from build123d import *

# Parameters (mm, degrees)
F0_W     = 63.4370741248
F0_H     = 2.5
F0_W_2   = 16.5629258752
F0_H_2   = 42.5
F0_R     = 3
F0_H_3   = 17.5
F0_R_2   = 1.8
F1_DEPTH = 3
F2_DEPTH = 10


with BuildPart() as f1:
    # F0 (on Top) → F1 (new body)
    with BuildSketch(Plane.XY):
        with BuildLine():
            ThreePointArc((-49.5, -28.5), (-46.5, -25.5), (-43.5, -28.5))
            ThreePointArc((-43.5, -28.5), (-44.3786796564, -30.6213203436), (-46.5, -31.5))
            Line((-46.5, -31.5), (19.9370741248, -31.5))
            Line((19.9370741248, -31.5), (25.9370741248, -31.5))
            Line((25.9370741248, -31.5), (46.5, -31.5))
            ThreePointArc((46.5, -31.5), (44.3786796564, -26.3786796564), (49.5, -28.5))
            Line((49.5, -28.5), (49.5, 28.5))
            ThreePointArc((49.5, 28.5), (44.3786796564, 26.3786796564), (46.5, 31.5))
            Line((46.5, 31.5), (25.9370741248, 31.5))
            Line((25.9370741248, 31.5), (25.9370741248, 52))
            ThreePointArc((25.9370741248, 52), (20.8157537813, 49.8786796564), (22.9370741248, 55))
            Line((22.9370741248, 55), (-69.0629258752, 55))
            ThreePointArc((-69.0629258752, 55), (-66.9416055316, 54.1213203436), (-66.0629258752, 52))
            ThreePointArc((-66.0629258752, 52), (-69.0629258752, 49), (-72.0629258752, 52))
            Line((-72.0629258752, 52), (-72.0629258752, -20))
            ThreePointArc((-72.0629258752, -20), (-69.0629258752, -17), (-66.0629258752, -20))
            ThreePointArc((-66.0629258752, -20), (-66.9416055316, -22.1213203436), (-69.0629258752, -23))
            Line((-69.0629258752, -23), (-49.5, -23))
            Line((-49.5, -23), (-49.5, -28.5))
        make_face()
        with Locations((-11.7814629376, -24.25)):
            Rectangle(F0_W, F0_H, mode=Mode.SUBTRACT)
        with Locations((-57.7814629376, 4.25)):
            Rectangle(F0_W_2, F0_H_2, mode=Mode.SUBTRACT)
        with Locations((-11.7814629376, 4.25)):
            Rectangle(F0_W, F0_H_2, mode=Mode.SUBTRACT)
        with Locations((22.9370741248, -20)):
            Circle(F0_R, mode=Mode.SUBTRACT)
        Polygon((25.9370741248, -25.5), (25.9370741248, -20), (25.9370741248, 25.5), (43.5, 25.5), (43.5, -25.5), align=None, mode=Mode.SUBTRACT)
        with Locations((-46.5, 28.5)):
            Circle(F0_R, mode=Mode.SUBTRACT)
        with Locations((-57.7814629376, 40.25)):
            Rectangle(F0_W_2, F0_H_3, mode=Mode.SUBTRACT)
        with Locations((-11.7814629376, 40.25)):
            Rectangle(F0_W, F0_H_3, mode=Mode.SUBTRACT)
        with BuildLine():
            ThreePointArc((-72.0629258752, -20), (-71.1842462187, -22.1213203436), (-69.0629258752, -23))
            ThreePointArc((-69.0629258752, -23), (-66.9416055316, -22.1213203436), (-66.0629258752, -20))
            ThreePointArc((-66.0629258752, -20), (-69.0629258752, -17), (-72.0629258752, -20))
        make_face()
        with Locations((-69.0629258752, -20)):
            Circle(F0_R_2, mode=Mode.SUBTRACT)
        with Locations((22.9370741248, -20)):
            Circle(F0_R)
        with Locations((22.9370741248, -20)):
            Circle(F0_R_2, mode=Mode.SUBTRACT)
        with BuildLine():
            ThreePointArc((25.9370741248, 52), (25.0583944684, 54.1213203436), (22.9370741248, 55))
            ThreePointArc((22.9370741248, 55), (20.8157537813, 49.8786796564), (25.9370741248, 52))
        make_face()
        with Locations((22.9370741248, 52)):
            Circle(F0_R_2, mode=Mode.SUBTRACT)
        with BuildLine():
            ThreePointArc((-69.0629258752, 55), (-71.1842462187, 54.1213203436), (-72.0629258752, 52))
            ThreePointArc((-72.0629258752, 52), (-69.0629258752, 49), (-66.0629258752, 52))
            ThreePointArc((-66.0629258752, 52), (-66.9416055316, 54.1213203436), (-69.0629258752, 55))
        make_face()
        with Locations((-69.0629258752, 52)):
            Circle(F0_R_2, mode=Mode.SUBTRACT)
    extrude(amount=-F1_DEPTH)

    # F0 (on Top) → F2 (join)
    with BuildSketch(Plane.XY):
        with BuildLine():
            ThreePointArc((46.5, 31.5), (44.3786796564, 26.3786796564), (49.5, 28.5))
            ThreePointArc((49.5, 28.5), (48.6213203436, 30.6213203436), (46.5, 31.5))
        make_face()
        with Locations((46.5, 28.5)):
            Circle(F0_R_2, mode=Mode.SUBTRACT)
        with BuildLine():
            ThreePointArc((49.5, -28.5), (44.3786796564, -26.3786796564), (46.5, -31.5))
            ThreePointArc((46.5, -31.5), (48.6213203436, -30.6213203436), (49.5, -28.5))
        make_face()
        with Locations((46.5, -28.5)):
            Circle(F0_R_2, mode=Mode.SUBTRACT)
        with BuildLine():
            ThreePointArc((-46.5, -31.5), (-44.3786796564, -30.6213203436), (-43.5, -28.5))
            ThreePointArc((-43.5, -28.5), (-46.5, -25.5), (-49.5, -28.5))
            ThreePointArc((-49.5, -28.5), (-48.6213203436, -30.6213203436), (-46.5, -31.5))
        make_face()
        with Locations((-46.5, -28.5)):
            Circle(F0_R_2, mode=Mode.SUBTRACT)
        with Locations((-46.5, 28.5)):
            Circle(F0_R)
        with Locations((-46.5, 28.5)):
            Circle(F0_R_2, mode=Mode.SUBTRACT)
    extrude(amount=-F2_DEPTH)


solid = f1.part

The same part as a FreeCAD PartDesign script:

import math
import FreeCAD as App
import Part
import Sketcher

doc = App.newDocument("Part")
body = doc.addObject("PartDesign::Body", "Body")

sketch1 = body.newObject("Sketcher::SketchObject", "Sketch")
sketch1.AttachmentSupport = (doc.getObject("XY_Plane"), [""])
sketch1.MapMode = "FlatFace"
sketch1.addGeometry([
    Part.ArcOfCircle(Part.Circle(App.Vector(-46.5, -28.5, 0), App.Vector(0, 0, 1), 3), math.radians(0), math.radians(180)),
    Part.ArcOfCircle(Part.Circle(App.Vector(-46.5, -28.5, 0), App.Vector(0, 0, 1), 3), math.radians(-90), math.radians(0)),
    Part.LineSegment(App.Vector(-46.5, -31.5, 0), App.Vector(46.5, -31.5, 0)),
    Part.ArcOfCircle(Part.Circle(App.Vector(46.5, -28.5, 0), App.Vector(0, 0, 1), 3), math.radians(0), math.radians(270)),
    Part.LineSegment(App.Vector(49.5, -28.5, 0), App.Vector(49.5, 28.5, 0)),
    Part.ArcOfCircle(Part.Circle(App.Vector(46.5, 28.5, 0), App.Vector(0, 0, 1), 3), math.radians(90), math.radians(360)),
    Part.LineSegment(App.Vector(46.5, 31.5, 0), App.Vector(25.9, 31.5, 0)),
    Part.LineSegment(App.Vector(25.9, 31.5, 0), App.Vector(25.9, 52, 0)),
    Part.ArcOfCircle(Part.Circle(App.Vector(22.9, 52, 0), App.Vector(0, 0, 1), 3), math.radians(0), math.radians(90)),
    Part.LineSegment(App.Vector(22.9, 55, 0), App.Vector(-69.1, 55, 0)),
    Part.ArcOfCircle(Part.Circle(App.Vector(-69.1, 52, 0), App.Vector(0, 0, 1), 3), math.radians(90), math.radians(180)),
    Part.LineSegment(App.Vector(-72.1, 52, 0), App.Vector(-72.1, -20, 0)),
    Part.ArcOfCircle(Part.Circle(App.Vector(-69.1, -20, 0), App.Vector(0, 0, 1), 3), math.radians(180), math.radians(270)),
    Part.LineSegment(App.Vector(-69.1, -23, 0), App.Vector(-49.5, -23, 0)),
    Part.LineSegment(App.Vector(-49.5, -23, 0), App.Vector(-49.5, -28.5, 0)),
    Part.Circle(App.Vector(-69.1, -20, 0), App.Vector(0, 0, 1), 1.8),
    Part.LineSegment(App.Vector(-49.5, -17, 0), App.Vector(-66.1, -17, 0)),
    Part.LineSegment(App.Vector(-66.1, -17, 0), App.Vector(-66.1, 25.5, 0)),
    Part.LineSegment(App.Vector(-66.1, 25.5, 0), App.Vector(-49.5, 25.5, 0)),
    Part.LineSegment(App.Vector(-49.5, 25.5, 0), App.Vector(-49.5, -17, 0)),
    Part.LineSegment(App.Vector(19.9, -25.5, 0), App.Vector(-43.5, -25.5, 0)),
    Part.LineSegment(App.Vector(-43.5, -25.5, 0), App.Vector(-43.5, -23, 0)),
    Part.LineSegment(App.Vector(-43.5, -23, 0), App.Vector(19.9, -23, 0)),
    Part.LineSegment(App.Vector(19.9, -23, 0), App.Vector(19.9, -25.5, 0)),
    Part.Circle(App.Vector(22.9, -20, 0), App.Vector(0, 0, 1), 1.8),
    Part.LineSegment(App.Vector(19.9, -17, 0), App.Vector(-43.5, -17, 0)),
    Part.LineSegment(App.Vector(-43.5, -17, 0), App.Vector(-43.5, 25.5, 0)),
    Part.LineSegment(App.Vector(-43.5, 25.5, 0), App.Vector(19.9, 25.5, 0)),
    Part.LineSegment(App.Vector(19.9, 25.5, 0), App.Vector(19.9, -17, 0)),
    Part.LineSegment(App.Vector(25.9, -25.5, 0), App.Vector(25.9, 25.5, 0)),
    Part.LineSegment(App.Vector(25.9, 25.5, 0), App.Vector(43.5, 25.5, 0)),
    Part.LineSegment(App.Vector(43.5, 25.5, 0), App.Vector(43.5, -25.5, 0)),
    Part.LineSegment(App.Vector(43.5, -25.5, 0), App.Vector(25.9, -25.5, 0)),
    Part.Circle(App.Vector(-46.5, 28.5, 0), App.Vector(0, 0, 1), 3),
    Part.LineSegment(App.Vector(-49.5, 31.5, 0), App.Vector(-66.1, 31.5, 0)),
    Part.LineSegment(App.Vector(-66.1, 31.5, 0), App.Vector(-66.1, 49, 0)),
    Part.LineSegment(App.Vector(-66.1, 49, 0), App.Vector(-49.5, 49, 0)),
    Part.LineSegment(App.Vector(-49.5, 49, 0), App.Vector(-49.5, 31.5, 0)),
    Part.Circle(App.Vector(-69.1, 52, 0), App.Vector(0, 0, 1), 1.8),
    Part.LineSegment(App.Vector(19.9, 31.5, 0), App.Vector(-43.5, 31.5, 0)),
    Part.LineSegment(App.Vector(-43.5, 31.5, 0), App.Vector(-43.5, 49, 0)),
    Part.LineSegment(App.Vector(-43.5, 49, 0), App.Vector(19.9, 49, 0)),
    Part.LineSegment(App.Vector(19.9, 49, 0), App.Vector(19.9, 31.5, 0)),
    Part.Circle(App.Vector(22.9, 52, 0), App.Vector(0, 0, 1), 1.8),
], False)
sketch1.addConstraint([
    Sketcher.Constraint("Tangent", 0, 1, 1, 2),
    Sketcher.Constraint("Tangent", 1, 1, 2, 1),
    Sketcher.Constraint("Tangent", 2, 2, 3, 2),
    Sketcher.Constraint("Tangent", 3, 1, 4, 1),
    Sketcher.Constraint("Tangent", 4, 2, 5, 2),
    Sketcher.Constraint("Tangent", 5, 1, 6, 1),
    Sketcher.Constraint("Coincident", 6, 2, 7, 1),
    Sketcher.Constraint("Tangent", 7, 2, 8, 1),
    Sketcher.Constraint("Tangent", 8, 2, 9, 1),
    Sketcher.Constraint("Tangent", 9, 2, 10, 1),
    Sketcher.Constraint("Tangent", 10, 2, 11, 1),
    Sketcher.Constraint("Tangent", 11, 2, 12, 1),
    Sketcher.Constraint("Tangent", 12, 2, 13, 1),
    Sketcher.Constraint("Coincident", 13, 2, 14, 1),
    Sketcher.Constraint("Tangent", 14, 2, 0, 2),
    Sketcher.Constraint("Coincident", 16, 2, 17, 1),
    Sketcher.Constraint("Coincident", 17, 2, 18, 1),
    Sketcher.Constraint("Coincident", 18, 2, 19, 1),
    Sketcher.Constraint("Coincident", 19, 2, 16, 1),
    Sketcher.Constraint("Coincident", 20, 2, 21, 1),
    Sketcher.Constraint("Coincident", 21, 2, 22, 1),
    Sketcher.Constraint("Coincident", 22, 2, 23, 1),
    Sketcher.Constraint("Coincident", 23, 2, 20, 1),
    Sketcher.Constraint("Coincident", 25, 2, 26, 1),
    Sketcher.Constraint("Coincident", 26, 2, 27, 1),
    Sketcher.Constraint("Coincident", 27, 2, 28, 1),
    Sketcher.Constraint("Coincident", 28, 2, 25, 1),
    Sketcher.Constraint("Coincident", 29, 2, 30, 1),
    Sketcher.Constraint("Coincident", 30, 2, 31, 1),
    Sketcher.Constraint("Coincident", 31, 2, 32, 1),
    Sketcher.Constraint("Coincident", 32, 2, 29, 1),
    Sketcher.Constraint("Coincident", 34, 2, 35, 1),
    Sketcher.Constraint("Coincident", 35, 2, 36, 1),
    Sketcher.Constraint("Coincident", 36, 2, 37, 1),
    Sketcher.Constraint("Coincident", 37, 2, 34, 1),
    Sketcher.Constraint("Coincident", 39, 2, 40, 1),
    Sketcher.Constraint("Coincident", 40, 2, 41, 1),
    Sketcher.Constraint("Coincident", 41, 2, 42, 1),
    Sketcher.Constraint("Coincident", 42, 2, 39, 1),
    Sketcher.Constraint("Horizontal", 2),
    Sketcher.Constraint("Vertical", 4),
    Sketcher.Constraint("Horizontal", 6),
    Sketcher.Constraint("Vertical", 7),
    Sketcher.Constraint("Horizontal", 9),
    Sketcher.Constraint("Vertical", 11),
    Sketcher.Constraint("Horizontal", 13),
    Sketcher.Constraint("Vertical", 14),
    Sketcher.Constraint("Horizontal", 16),
    Sketcher.Constraint("Vertical", 17),
    Sketcher.Constraint("Horizontal", 18),
    Sketcher.Constraint("Vertical", 19),
    Sketcher.Constraint("Horizontal", 20),
    Sketcher.Constraint("Vertical", 21),
    Sketcher.Constraint("Horizontal", 22),
    Sketcher.Constraint("Vertical", 23),
    Sketcher.Constraint("Horizontal", 25),
    Sketcher.Constraint("Vertical", 26),
    Sketcher.Constraint("Horizontal", 27),
    Sketcher.Constraint("Vertical", 28),
    Sketcher.Constraint("Vertical", 29),
    Sketcher.Constraint("Horizontal", 30),
    Sketcher.Constraint("Vertical", 31),
    Sketcher.Constraint("Horizontal", 32),
    Sketcher.Constraint("Horizontal", 34),
    Sketcher.Constraint("Vertical", 35),
    Sketcher.Constraint("Horizontal", 36),
    Sketcher.Constraint("Vertical", 37),
    Sketcher.Constraint("Horizontal", 39),
    Sketcher.Constraint("Vertical", 40),
    Sketcher.Constraint("Horizontal", 41),
    Sketcher.Constraint("Vertical", 42),
    Sketcher.Constraint("Coincident", 15, 3, 12, 3),
    Sketcher.Constraint("Coincident", 38, 3, 10, 3),
    Sketcher.Constraint("Coincident", 43, 3, 8, 3),
    Sketcher.Constraint("Equal", 0, 1),
    Sketcher.Constraint("Equal", 1, 3),
    Sketcher.Constraint("Equal", 3, 5),
    Sketcher.Constraint("Equal", 5, 8),
    Sketcher.Constraint("Equal", 8, 10),
    Sketcher.Constraint("Equal", 10, 12),
    Sketcher.Constraint("Equal", 15, 24),
    Sketcher.Constraint("Equal", 12, 33),
    Sketcher.Constraint("Equal", 24, 38),
    Sketcher.Constraint("Equal", 38, 43),
    Sketcher.Constraint("Symmetric", 0, 3, 5, 3, -1, 1),
    Sketcher.Constraint("Symmetric", 3, 3, 33, 3, -1, 1),
    Sketcher.Constraint("Symmetric", 20, 2, 30, 2, -1, 1),
    Sketcher.Constraint("Symmetric", 26, 2, 31, 2, -1, 1),
    Sketcher.Constraint("Symmetric", 23, 2, 27, 2, -1),
    Sketcher.Constraint("Horizontal", 15, 3, 24, 3),
    Sketcher.Constraint("Horizontal", 3, 3, 0, 1),
    Sketcher.Constraint("Horizontal", 13, 2, 21, 2),
    Sketcher.Constraint("Horizontal", 19, 2, 25, 2),
    Sketcher.Constraint("Horizontal", 18, 2, 26, 2),
    Sketcher.Constraint("Horizontal", 6, 2, 34, 2),
    Sketcher.Constraint("Horizontal", 37, 2, 39, 2),
    Sketcher.Constraint("Horizontal", 36, 2, 40, 2),
    Sketcher.Constraint("Vertical", 8, 3, 24, 3),
    Sketcher.Constraint("Vertical", 14, 2, 18, 2),
    Sketcher.Constraint("Vertical", 0, 1, 20, 2),
    Sketcher.Constraint("Vertical", 7, 2, 29, 2),
    Sketcher.Constraint("Vertical", 17, 2, 34, 2),
    Sketcher.Constraint("Vertical", 19, 2, 36, 2),
    Sketcher.Constraint("Vertical", 26, 2, 39, 2),
    Sketcher.Constraint("Vertical", 28, 2, 41, 2),
    Sketcher.Constraint("Diameter", 33, 6.0),
    Sketcher.Constraint("Diameter", 15, 3.6),
    Sketcher.Constraint("DistanceX", 2, 1, 2, 2, 93.0),
    Sketcher.Constraint("DistanceX", 9, 2, 9, 1, 92.0),
    Sketcher.Constraint("DistanceY", 4, 1, 4, 2, 57.0),
    Sketcher.Constraint("DistanceY", 11, 2, 11, 1, 72.0),
    Sketcher.Constraint("DistanceY", 29, 1, 29, 2, 51.0),
    Sketcher.Constraint("DistanceY", 7, 1, 7, 2, 20.5),
    Sketcher.Constraint("DistanceY", 17, 1, 17, 2, 42.5),
    Sketcher.Constraint("DistanceY", 35, 1, 35, 2, 17.5),
    Sketcher.Constraint("DistanceX", 12, 3, 16, 2, 3.0),
    Sketcher.Constraint("DistanceX", 22, 2, 24, 3, 3.0),
    Sketcher.Constraint("DistanceX", 6, 2, 6, 1, 20.562926),
])
pad1 = body.newObject("PartDesign::Pad", "Pad")
pad1.Profile = sketch1
pad1.Length = 3
pad1.Reversed = True

sketch2 = body.newObject("Sketcher::SketchObject", "Sketch001")
sketch2.AttachmentSupport = (doc.getObject("XY_Plane"), [""])
sketch2.MapMode = "FlatFace"
sketch2.addGeometry([
    Part.ArcOfCircle(Part.Circle(App.Vector(46.5, 28.5, 0), App.Vector(0, 0, 1), 3), math.radians(90), math.radians(360)),
    Part.ArcOfCircle(Part.Circle(App.Vector(46.5, 28.5, 0), App.Vector(0, 0, 1), 3), math.radians(0), math.radians(90)),
    Part.Circle(App.Vector(46.5, 28.5, 0), App.Vector(0, 0, 1), 1.8),
    Part.ArcOfCircle(Part.Circle(App.Vector(46.5, -28.5, 0), App.Vector(0, 0, 1), 3), math.radians(0), math.radians(270)),
    Part.ArcOfCircle(Part.Circle(App.Vector(46.5, -28.5, 0), App.Vector(0, 0, 1), 3), math.radians(-90), math.radians(0)),
    Part.Circle(App.Vector(46.5, -28.5, 0), App.Vector(0, 0, 1), 1.8),
    Part.ArcOfCircle(Part.Circle(App.Vector(-46.5, -28.5, 0), App.Vector(0, 0, 1), 3), math.radians(-90), math.radians(0)),
    Part.ArcOfCircle(Part.Circle(App.Vector(-46.5, -28.5, 0), App.Vector(0, 0, 1), 3), math.radians(0), math.radians(180)),
    Part.ArcOfCircle(Part.Circle(App.Vector(-46.5, -28.5, 0), App.Vector(0, 0, 1), 3), math.radians(180), math.radians(270)),
    Part.Circle(App.Vector(-46.5, -28.5, 0), App.Vector(0, 0, 1), 1.8),
    Part.Circle(App.Vector(-46.5, 28.5, 0), App.Vector(0, 0, 1), 3),
    Part.Circle(App.Vector(-46.5, 28.5, 0), App.Vector(0, 0, 1), 1.8),
], False)
sketch2.addConstraint([
    Sketcher.Constraint("Tangent", 0, 1, 1, 2),
    Sketcher.Constraint("Coincident", 1, 1, 0, 2),
    Sketcher.Constraint("Tangent", 3, 1, 4, 2),
    Sketcher.Constraint("Coincident", 4, 1, 3, 2),
    Sketcher.Constraint("Tangent", 6, 2, 7, 1),
    Sketcher.Constraint("Tangent", 7, 2, 8, 1),
    Sketcher.Constraint("Tangent", 8, 2, 6, 1),
    Sketcher.Constraint("Coincident", 2, 3, 0, 3),
    Sketcher.Constraint("Coincident", 5, 3, 3, 3),
    Sketcher.Constraint("Coincident", 9, 3, 6, 3),
    Sketcher.Constraint("Coincident", 11, 3, 10, 3),
    Sketcher.Constraint("Equal", 1, 3),
    Sketcher.Constraint("Equal", 2, 5),
    Sketcher.Constraint("Equal", 4, 6),
    Sketcher.Constraint("Equal", 5, 9),
    Sketcher.Constraint("Equal", 8, 10),
    Sketcher.Constraint("Equal", 9, 11),
    Sketcher.Constraint("Symmetric", 0, 3, 6, 3, -1, 1),
    Sketcher.Constraint("Symmetric", 3, 3, 10, 3, -1, 1),
    Sketcher.Constraint("Symmetric", 3, 3, 6, 3, -2),
    Sketcher.Constraint("Horizontal", 11, 3, 1, 1),
    Sketcher.Constraint("Horizontal", 9, 3, 3, 1),
    Sketcher.Constraint("Horizontal", 3, 1, 6, 2),
    Sketcher.Constraint("Horizontal", 6, 2, 7, 2),
    Sketcher.Constraint("Vertical", 5, 3, 0, 1),
    Sketcher.Constraint("Vertical", 0, 1, 4, 1),
    Sketcher.Constraint("Vertical", 11, 3, 8, 2),
    Sketcher.Constraint("Diameter", 10, 6.0),
    Sketcher.Constraint("Diameter", 2, 3.6),
    Sketcher.Constraint("DistanceY", 3, 3, 0, 3, 57.0),
    Sketcher.Constraint("DistanceX", 6, 3, 3, 3, 93.0),
])
pad2 = body.newObject("PartDesign::Pad", "Pad001")
pad2.Profile = sketch2
pad2.Length = 10
pad2.Reversed = True

doc.recompute()
